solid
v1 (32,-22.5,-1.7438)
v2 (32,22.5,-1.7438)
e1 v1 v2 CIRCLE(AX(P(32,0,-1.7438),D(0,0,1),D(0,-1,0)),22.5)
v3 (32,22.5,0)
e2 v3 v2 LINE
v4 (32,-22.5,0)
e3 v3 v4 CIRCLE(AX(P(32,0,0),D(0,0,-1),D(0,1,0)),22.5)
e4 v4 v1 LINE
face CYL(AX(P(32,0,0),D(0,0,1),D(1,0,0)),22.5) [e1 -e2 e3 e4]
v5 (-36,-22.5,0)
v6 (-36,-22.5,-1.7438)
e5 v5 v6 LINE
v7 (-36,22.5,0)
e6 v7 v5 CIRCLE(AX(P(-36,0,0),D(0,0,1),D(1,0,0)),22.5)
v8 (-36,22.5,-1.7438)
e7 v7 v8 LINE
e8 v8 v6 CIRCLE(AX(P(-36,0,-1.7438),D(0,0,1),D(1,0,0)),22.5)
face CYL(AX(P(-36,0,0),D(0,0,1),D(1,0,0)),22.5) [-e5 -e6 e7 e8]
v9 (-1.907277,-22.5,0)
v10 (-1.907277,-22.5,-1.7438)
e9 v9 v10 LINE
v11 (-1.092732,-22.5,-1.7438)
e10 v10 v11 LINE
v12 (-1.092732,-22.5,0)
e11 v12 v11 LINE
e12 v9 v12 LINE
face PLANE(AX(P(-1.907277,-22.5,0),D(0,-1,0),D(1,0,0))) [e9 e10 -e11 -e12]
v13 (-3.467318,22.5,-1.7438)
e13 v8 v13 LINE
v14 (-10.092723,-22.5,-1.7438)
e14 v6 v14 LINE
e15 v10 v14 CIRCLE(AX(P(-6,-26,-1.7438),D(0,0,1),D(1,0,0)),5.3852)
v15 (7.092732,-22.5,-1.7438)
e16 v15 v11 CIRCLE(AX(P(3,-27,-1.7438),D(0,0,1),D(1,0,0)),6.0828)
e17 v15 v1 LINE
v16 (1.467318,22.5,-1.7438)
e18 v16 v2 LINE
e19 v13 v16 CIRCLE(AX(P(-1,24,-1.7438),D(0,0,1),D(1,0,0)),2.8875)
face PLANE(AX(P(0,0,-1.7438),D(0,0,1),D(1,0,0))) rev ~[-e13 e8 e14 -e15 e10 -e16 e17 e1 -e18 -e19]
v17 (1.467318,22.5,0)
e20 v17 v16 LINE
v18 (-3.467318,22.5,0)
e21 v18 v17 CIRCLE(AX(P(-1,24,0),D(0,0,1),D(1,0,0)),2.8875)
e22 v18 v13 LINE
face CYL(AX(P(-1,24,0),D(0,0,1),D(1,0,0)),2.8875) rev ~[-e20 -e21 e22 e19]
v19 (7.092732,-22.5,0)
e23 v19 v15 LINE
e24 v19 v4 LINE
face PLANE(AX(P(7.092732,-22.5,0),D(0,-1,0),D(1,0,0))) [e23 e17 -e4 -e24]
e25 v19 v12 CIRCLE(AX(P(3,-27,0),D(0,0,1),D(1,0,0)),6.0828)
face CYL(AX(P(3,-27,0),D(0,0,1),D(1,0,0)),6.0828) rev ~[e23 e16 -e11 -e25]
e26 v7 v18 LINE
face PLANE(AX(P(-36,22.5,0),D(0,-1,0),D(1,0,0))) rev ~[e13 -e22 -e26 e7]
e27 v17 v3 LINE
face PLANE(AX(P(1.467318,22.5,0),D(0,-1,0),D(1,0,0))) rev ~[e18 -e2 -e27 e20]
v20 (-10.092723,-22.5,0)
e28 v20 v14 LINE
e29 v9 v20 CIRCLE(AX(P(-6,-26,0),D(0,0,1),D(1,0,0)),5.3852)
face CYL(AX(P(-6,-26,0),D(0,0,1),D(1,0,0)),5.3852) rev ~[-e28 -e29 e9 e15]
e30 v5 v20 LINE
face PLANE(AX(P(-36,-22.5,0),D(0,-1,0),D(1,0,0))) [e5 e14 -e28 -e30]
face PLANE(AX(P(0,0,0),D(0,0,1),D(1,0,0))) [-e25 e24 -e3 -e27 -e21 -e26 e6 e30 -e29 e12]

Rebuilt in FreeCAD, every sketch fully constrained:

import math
import FreeCAD as App
import Part
import Sketcher

V = App.Vector

doc = App.newDocument("Part")
body = doc.addObject("PartDesign::Body", "Body")

sketch1 = body.newObject("Sketcher::SketchObject", "Sketch")
sketch1.AttachmentSupport = (doc.getObject("XY_Plane"), [""])
sketch1.MapMode = "FlatFace"
sketch1.addGeometry(Part.ArcOfCircle(Part.Circle(V(32, 0, 0), V(0, 0, 1), 22.5), math.radians(-90), math.radians(90)), False)
sketch1.addGeometry(Part.LineSegment(V(32, 22.5, 0), V(1.5, 22.5, 0)), False)
sketch1.addGeometry(Part.ArcOfCircle(Part.Circle(V(-1, 24, 0), V(0, 0, 1), 2.9), math.radians(-149), math.radians(-31)), False)
sketch1.addGeometry(Part.LineSegment(V(-3.5, 22.5, 0), V(-36, 22.5, 0)), False)
sketch1.addGeometry(Part.ArcOfCircle(Part.Circle(V(-36, 0, 0), V(0, 0, 1), 22.5), math.radians(90), math.radians(270)), False)
sketch1.addGeometry(Part.LineSegment(V(-36, -22.5, 0), V(-10.1, -22.5, 0)), False)
sketch1.addGeometry(Part.ArcOfCircle(Part.Circle(V(-6, -26, 0), V(0, 0, 1), 5.4), math.radians(41), math.radians(139)), False)
sketch1.addGeometry(Part.LineSegment(V(-1.9, -22.5, 0), V(-1.1, -22.5, 0)), False)
sketch1.addGeometry(Part.ArcOfCircle(Part.Circle(V(3, -27, 0), V(0, 0, 1), 6.1), math.radians(48), math.radians(132)), False)
sketch1.addGeometry(Part.LineSegment(V(7.1, -22.5, 0), V(32, -22.5, 0)), False)
sketch1.addConstraint(Sketcher.Constraint("Tangent", 0, 2, 1, 1))
sketch1.addConstraint(Sketcher.Constraint("Coincident", 1, 2, 2, 2))
sketch1.addConstraint(Sketcher.Constraint("Coincident", 2, 1, 3, 1))
sketch1.addConstraint(Sketcher.Constraint("Tangent", 3, 2, 4, 1))
sketch1.addConstraint(Sketcher.Constraint("Tangent", 4, 2, 5, 1))
sketch1.addConstraint(Sketcher.Constraint("Coincident", 5, 2, 6, 2))
sketch1.addConstraint(Sketcher.Constraint("Coincident", 6, 1, 7, 1))
sketch1.addConstraint(Sketcher.Constraint("Coincident", 7, 2, 8, 2))
sketch1.addConstraint(Sketcher.Constraint("Coincident", 8, 1, 9, 1))
sketch1.addConstraint(Sketcher.Constraint("Tangent", 9, 2, 0, 1))
sketch1.addConstraint(Sketcher.Constraint("Horizontal", 1))
sketch1.addConstraint(Sketcher.Constraint("Horizontal", 3))
sketch1.addConstraint(Sketcher.Constraint("Horizontal", 5))
sketch1.addConstraint(Sketcher.Constraint("Horizontal", 7))
sketch1.addConstraint(Sketcher.Constraint("Horizontal", 9))
sketch1.addConstraint(Sketcher.Constraint("Equal", 0, 4))
sketch1.addConstraint(Sketcher.Constraint("PointOnObject", 0, 3, -1))
sketch1.addConstraint(Sketcher.Constraint("PointOnObject", 4, 3, -1))
sketch1.addConstraint(Sketcher.Constraint("Horizontal", 5, 2, 6, 1))
sketch1.addConstraint(Sketcher.Constraint("Radius", 0, 22.5))
sketch1.addConstraint(Sketcher.Constraint("DistanceX", 4, 3, 0, 3, 68.0))
sketch1.addConstraint(Sketcher.Constraint("DistanceX", -1, 1, 0, 3, 32.0))
sketch1.addConstraint(Sketcher.Constraint("DistanceX", 2, 3, -1, 1, 1.0))
sketch1.addConstraint(Sketcher.Constraint("DistanceY", -1, 1, 2, 3, 24.0))
sketch1.addConstraint(Sketcher.Constraint("DistanceX", 6, 3, -1, 1, 6.0))
sketch1.addConstraint(Sketcher.Constraint("DistanceY", 6, 3, -1, 1, 26.0))
sketch1.addConstraint(Sketcher.Constraint("DistanceX", -1, 1, 8, 3, 3.0))
sketch1.addConstraint(Sketcher.Constraint("DistanceY", 8, 3, -1, 1, 27.0))
sketch1.addConstraint(Sketcher.Constraint("DistanceX", 5, 2, 7, 2, 9.0))
sketch1.addConstraint(Sketcher.Constraint("Radius", 2, 2.8875))
sketch1.addConstraint(Sketcher.Constraint("Radius", 6, 5.3852))
pad1 = body.newObject("PartDesign::Pad", "Pad")
pad1.Profile = sketch1
pad1.Length = 1.7438
pad1.Reversed = True

doc.recompute()
